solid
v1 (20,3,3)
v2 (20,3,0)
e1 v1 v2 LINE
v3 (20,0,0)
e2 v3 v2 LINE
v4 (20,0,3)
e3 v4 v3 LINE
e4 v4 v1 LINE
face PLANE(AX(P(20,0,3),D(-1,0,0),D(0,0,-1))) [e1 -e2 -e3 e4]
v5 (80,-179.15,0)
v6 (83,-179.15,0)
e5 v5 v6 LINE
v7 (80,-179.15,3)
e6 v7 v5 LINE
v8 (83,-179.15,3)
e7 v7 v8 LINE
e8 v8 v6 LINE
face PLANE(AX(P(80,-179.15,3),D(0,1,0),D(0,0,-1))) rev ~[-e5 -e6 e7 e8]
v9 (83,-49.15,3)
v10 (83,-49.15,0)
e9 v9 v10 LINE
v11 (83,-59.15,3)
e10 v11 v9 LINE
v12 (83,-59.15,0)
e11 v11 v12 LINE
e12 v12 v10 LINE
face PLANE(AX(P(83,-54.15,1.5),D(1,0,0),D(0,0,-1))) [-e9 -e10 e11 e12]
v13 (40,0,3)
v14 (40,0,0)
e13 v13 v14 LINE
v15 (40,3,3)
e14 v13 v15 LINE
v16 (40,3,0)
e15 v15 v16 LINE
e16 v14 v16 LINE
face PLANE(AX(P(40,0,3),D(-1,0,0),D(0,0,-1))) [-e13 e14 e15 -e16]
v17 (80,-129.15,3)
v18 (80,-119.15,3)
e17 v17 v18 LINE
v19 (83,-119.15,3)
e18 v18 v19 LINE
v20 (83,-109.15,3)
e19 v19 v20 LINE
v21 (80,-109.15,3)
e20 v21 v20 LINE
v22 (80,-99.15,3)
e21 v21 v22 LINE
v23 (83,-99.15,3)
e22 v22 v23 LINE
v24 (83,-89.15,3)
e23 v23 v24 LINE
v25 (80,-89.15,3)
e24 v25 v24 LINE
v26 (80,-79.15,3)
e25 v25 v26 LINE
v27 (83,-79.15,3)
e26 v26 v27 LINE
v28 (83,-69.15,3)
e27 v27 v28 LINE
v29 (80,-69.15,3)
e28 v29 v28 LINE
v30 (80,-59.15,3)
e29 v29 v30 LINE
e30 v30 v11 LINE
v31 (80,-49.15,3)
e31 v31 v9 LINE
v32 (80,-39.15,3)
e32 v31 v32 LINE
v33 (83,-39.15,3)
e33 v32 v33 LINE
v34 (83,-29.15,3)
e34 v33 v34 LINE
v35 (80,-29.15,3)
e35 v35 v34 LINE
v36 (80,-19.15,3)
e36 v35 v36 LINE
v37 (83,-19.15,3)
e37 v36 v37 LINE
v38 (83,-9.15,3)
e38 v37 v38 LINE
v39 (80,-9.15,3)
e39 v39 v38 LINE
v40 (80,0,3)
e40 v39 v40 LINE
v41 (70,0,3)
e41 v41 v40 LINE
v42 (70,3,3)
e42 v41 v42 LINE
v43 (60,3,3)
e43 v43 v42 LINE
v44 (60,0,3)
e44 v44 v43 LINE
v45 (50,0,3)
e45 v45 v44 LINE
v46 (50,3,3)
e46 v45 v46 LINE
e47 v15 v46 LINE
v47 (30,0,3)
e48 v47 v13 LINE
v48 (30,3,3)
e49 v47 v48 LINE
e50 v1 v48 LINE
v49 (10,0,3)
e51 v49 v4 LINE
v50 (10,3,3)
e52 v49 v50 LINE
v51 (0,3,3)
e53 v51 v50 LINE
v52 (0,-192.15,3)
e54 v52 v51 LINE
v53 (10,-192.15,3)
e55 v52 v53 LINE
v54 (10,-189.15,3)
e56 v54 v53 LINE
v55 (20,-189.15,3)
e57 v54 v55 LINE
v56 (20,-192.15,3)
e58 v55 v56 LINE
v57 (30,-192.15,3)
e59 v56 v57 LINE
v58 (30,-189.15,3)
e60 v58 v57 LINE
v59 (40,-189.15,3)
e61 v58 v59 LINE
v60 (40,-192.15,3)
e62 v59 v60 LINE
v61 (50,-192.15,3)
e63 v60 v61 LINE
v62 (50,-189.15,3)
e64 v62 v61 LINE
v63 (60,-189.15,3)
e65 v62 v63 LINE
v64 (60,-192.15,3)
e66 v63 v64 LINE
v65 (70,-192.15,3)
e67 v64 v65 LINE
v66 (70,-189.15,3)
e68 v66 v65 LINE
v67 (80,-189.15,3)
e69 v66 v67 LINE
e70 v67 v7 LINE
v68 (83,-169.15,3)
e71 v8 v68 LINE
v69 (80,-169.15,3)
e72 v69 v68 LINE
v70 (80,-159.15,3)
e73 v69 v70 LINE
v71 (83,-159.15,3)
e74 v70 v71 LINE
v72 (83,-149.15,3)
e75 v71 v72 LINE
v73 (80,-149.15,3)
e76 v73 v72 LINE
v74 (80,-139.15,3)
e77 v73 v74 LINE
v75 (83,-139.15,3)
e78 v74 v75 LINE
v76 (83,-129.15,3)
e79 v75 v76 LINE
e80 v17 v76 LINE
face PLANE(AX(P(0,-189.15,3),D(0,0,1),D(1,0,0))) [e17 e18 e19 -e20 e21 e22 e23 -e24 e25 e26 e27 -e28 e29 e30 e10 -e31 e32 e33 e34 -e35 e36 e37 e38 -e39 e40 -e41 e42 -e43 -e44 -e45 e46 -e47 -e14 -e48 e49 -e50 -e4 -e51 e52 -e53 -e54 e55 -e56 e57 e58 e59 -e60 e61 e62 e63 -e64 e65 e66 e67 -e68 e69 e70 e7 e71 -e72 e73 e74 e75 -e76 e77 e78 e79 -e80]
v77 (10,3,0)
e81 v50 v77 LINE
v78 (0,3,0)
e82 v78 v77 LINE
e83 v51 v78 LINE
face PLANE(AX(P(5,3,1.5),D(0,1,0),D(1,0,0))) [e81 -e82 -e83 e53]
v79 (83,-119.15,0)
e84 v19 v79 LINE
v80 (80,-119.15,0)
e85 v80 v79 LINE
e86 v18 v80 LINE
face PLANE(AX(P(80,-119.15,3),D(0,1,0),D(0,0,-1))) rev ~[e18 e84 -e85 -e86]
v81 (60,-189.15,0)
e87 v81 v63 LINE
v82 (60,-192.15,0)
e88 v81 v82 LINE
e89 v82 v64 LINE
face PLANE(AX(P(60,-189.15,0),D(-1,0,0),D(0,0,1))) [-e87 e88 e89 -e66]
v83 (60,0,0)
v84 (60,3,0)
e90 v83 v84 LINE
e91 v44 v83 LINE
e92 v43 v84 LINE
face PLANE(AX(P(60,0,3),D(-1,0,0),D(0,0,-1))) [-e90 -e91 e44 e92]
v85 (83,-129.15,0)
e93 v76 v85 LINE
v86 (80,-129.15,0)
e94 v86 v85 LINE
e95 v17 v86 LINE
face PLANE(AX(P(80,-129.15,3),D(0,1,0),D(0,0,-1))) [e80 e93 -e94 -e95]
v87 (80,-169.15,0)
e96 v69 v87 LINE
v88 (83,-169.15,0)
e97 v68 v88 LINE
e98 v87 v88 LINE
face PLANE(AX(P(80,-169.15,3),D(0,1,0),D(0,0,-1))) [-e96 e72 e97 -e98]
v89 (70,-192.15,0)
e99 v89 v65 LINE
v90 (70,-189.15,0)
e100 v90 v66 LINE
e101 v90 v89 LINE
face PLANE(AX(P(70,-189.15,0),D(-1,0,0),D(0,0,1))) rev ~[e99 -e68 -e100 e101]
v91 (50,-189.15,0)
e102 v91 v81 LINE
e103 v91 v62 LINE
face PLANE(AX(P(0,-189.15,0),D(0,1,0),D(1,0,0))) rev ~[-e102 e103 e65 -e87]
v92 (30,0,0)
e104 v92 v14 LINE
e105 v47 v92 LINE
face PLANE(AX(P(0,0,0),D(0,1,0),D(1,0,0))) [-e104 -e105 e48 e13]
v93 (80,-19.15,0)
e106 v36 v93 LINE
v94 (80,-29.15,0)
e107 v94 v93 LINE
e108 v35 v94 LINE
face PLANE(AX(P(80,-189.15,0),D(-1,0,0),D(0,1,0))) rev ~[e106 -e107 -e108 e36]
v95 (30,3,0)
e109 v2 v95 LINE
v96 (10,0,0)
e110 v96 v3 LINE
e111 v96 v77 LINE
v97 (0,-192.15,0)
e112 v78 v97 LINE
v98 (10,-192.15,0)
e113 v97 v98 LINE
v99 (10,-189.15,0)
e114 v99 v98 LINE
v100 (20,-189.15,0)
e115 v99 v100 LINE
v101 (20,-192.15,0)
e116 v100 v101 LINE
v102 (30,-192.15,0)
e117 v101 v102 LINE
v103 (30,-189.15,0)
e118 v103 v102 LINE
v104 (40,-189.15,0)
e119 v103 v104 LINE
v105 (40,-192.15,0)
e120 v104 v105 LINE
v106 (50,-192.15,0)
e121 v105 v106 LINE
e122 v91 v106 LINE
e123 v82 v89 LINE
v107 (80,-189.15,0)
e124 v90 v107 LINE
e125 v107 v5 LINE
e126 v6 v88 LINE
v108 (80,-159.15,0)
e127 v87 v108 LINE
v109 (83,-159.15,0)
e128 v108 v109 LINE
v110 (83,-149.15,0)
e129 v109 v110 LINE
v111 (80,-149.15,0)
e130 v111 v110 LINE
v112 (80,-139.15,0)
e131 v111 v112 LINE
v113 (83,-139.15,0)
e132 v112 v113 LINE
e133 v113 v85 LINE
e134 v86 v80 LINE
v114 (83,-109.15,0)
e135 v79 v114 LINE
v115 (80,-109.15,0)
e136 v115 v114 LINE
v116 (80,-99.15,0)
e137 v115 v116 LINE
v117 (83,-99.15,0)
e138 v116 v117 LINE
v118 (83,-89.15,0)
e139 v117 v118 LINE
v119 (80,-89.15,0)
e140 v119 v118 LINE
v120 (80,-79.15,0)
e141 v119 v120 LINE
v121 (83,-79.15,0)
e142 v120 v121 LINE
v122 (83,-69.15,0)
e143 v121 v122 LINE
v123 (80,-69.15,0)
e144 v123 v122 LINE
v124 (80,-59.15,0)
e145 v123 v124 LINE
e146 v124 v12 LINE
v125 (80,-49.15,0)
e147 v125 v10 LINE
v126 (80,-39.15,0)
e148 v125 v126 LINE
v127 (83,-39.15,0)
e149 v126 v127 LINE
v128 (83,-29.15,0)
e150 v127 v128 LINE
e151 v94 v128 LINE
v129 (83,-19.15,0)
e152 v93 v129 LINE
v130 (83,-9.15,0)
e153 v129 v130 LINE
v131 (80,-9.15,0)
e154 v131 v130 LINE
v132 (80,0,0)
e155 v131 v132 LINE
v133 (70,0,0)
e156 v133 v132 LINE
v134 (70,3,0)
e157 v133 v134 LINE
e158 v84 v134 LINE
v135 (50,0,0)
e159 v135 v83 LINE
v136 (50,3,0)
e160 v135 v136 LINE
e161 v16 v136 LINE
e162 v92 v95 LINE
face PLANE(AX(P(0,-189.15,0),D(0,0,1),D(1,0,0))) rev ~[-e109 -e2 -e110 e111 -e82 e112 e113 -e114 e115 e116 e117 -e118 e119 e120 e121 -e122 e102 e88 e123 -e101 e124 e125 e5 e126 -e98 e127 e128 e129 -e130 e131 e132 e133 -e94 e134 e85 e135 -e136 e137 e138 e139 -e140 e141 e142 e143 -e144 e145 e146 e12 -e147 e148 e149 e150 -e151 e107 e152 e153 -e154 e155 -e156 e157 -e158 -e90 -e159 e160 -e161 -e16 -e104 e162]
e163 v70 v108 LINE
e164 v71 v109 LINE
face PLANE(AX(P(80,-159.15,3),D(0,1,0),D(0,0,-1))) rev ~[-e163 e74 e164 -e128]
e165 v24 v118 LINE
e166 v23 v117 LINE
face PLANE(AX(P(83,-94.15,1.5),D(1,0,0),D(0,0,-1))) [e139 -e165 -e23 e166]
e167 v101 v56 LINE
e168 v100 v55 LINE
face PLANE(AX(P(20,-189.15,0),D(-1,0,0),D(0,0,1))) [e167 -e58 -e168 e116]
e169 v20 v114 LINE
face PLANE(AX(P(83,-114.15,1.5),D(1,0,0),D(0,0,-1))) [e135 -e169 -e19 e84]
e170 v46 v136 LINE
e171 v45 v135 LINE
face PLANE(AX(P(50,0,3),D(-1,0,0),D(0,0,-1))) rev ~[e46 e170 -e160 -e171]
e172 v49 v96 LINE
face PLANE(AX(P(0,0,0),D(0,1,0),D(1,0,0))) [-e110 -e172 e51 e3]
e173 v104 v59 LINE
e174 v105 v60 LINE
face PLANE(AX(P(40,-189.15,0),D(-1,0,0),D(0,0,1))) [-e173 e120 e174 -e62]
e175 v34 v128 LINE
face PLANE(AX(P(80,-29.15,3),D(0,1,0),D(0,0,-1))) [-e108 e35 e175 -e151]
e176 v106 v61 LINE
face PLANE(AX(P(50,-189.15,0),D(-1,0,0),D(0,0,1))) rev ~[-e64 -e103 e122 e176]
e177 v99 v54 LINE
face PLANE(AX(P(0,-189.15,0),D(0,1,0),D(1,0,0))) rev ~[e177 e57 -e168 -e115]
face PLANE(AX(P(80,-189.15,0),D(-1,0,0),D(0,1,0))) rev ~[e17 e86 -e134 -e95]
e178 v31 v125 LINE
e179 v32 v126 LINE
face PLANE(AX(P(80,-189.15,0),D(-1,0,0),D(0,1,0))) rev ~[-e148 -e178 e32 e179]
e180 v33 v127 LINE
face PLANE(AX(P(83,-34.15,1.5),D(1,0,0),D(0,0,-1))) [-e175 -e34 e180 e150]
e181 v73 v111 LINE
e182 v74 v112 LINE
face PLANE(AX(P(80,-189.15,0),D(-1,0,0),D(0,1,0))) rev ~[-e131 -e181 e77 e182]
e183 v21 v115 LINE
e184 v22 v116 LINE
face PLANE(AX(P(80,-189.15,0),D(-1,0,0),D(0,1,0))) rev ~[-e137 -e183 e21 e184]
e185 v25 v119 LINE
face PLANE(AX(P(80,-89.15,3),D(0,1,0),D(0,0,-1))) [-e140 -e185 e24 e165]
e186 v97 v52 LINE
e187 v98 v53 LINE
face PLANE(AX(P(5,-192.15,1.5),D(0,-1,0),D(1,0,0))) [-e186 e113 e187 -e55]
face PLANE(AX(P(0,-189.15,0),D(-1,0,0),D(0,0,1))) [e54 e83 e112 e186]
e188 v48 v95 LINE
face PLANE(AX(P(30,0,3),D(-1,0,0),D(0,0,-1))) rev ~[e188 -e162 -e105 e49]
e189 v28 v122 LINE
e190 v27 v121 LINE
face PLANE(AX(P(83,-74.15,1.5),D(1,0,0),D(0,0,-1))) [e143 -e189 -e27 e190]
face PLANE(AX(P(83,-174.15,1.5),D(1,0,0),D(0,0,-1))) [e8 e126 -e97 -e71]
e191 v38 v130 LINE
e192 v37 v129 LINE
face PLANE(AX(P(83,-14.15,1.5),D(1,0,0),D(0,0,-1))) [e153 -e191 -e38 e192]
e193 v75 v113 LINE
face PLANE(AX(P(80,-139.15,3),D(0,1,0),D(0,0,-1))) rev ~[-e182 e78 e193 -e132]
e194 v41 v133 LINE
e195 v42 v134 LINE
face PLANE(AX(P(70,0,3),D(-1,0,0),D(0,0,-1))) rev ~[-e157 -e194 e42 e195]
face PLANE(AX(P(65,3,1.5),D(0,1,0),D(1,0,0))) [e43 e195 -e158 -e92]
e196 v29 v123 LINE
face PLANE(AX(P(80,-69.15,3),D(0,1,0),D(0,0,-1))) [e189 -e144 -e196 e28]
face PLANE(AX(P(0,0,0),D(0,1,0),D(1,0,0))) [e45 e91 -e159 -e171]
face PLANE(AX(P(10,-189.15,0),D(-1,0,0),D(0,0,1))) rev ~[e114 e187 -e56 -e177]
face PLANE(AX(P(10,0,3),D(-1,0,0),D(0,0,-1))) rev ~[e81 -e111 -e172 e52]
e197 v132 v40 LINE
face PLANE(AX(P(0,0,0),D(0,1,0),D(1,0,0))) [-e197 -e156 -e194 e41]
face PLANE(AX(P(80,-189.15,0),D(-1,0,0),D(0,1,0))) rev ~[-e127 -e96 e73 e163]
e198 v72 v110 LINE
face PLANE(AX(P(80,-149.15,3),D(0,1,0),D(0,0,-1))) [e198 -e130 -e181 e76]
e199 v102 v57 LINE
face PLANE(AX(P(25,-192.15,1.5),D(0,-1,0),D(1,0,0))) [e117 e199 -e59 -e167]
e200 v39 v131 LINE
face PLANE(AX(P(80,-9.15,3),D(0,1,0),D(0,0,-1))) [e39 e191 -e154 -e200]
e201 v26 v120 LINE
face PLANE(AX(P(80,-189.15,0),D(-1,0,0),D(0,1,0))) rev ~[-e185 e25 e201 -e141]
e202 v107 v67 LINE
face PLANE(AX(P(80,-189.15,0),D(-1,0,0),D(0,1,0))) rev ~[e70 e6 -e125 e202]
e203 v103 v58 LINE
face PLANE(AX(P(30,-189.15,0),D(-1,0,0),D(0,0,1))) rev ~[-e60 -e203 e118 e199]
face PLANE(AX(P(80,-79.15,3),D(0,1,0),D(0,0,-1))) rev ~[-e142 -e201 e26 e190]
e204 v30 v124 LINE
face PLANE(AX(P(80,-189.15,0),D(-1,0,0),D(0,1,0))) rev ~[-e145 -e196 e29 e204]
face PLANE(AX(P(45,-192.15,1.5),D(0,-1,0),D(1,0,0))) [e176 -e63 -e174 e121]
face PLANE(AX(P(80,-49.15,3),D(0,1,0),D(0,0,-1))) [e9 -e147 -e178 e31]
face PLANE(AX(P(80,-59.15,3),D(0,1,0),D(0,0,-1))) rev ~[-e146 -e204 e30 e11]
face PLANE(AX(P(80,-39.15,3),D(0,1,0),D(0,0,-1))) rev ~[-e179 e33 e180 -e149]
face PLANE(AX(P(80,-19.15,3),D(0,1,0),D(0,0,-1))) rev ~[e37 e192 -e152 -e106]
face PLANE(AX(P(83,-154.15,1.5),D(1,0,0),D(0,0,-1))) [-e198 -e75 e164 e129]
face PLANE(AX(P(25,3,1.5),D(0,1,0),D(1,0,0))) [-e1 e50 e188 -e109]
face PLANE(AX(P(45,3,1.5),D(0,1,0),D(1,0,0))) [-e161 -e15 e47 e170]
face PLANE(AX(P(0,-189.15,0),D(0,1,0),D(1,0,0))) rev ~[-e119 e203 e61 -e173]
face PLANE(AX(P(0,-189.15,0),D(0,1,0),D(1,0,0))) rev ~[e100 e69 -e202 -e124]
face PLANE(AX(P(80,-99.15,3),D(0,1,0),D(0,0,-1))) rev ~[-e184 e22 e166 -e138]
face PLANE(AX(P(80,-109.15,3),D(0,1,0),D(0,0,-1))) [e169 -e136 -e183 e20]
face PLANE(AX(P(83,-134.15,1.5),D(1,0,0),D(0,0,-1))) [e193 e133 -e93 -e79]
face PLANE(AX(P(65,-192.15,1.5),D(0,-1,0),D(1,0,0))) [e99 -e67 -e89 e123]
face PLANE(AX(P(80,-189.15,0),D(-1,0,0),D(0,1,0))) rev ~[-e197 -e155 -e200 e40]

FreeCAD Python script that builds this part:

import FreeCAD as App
import Part
import Sketcher
from FreeCAD import Vector
Q = App.Units.Quantity


def add_polygon(sketch, points):
    """Adds a closed chain of lines whose ends are joined by coincident constraints."""
    first, n = sketch.GeometryCount, len(points)
    for a, b in zip(points, points[1:] + points[:1]):
        sketch.addGeometry(Part.LineSegment(App.Vector(*a, 0), App.Vector(*b, 0)), False)
    for i in range(n):
        sketch.addConstraint(Sketcher.Constraint("Coincident", first + i, 2, first + (i + 1) % n, 1))

doc = App.newDocument("Part")
params = doc.addObject("Spreadsheet::Sheet", "Params")
for row, (alias, value) in enumerate([
    ("sketch1_width", "80 mm"),
    ("sketch1_height", "189.15 mm"),
    ("pad1_length", "3 mm"),
    ("sketch2_width", "10 mm"),
    ("sketch2_height", "3 mm"),
    ("pad2_length", "3 mm"),
    ("linearpattern_pitch", "20 mm"),
    ("sketch3_width", "10 mm"),
    ("sketch3_height", "3 mm"),
    ("pad3_length", "3 mm"),
    ("linearpattern2_pitch", "20 mm"),
    ("sketch4_width", "10 mm"),
    ("sketch4_height", "3 mm"),
    ("pad4_length", "3 mm"),
    ("linearpattern3_pitch", "20 mm"),
], start=1):
    params.set(f"A{row}", alias)
    params.set(f"B{row}", "=" + value)
    params.setAlias(f"B{row}", alias)

body = doc.addObject("PartDesign::Body", "Body")

# Sketch on XY plane
sketch1 = body.newObject("Sketcher::SketchObject", "Sketch")
sketch1.AttachmentSupport = (doc.getObject("XY_Plane"), [""])
sketch1.MapMode = "FlatFace"
add_polygon(sketch1, [(0, 0), (0, -189), (80, -189), (80, 0)])  # lines 0-3
sketch1.addConstraint(Sketcher.Constraint("Vertical", 0))
sketch1.addConstraint(Sketcher.Constraint("Horizontal", 1))
sketch1.addConstraint(Sketcher.Constraint("Vertical", 2))
sketch1.addConstraint(Sketcher.Constraint("Horizontal", 3))
sketch1.addConstraint(Sketcher.Constraint("Coincident", 3, 2, -1, 1))
sketch1.addConstraint(Sketcher.Constraint("DistanceX", 1, 1, 1, 2, Q("80 mm")))
sketch1.addConstraint(Sketcher.Constraint("DistanceY", 0, 2, 0, 1, Q("189.15 mm")))
sketch1.setExpression("Constraints[9]", "Params.sketch1_width")
sketch1.setExpression("Constraints[10]", "Params.sketch1_height")
pad1 = body.newObject("PartDesign::Pad", "Pad")
pad1.Profile = sketch1
pad1.setExpression("Length", "Params.pad1_length")

# Sketch on XZ plane
sketch2 = body.newObject("Sketcher::SketchObject", "Sketch001")
sketch2.AttachmentSupport = (doc.getObject("XZ_Plane"), [""])
sketch2.MapMode = "FlatFace"
add_polygon(sketch2, [(0, 0), (0, 3), (10, 3), (10, 0)])  # lines 0-3
sketch2.addConstraint(Sketcher.Constraint("Vertical", 0))
sketch2.addConstraint(Sketcher.Constraint("Horizontal", 1))
sketch2.addConstraint(Sketcher.Constraint("Vertical", 2))
sketch2.addConstraint(Sketcher.Constraint("Horizontal", 3))
sketch2.addConstraint(Sketcher.Constraint("Coincident", 3, 2, -1, 1))
sketch2.addConstraint(Sketcher.Constraint("DistanceX", 1, 1, 1, 2, Q("10 mm")))
sketch2.addConstraint(Sketcher.Constraint("DistanceY", 0, 1, 0, 2, Q("3 mm")))
sketch2.setExpression("Constraints[9]", "Params.sketch2_width")
sketch2.setExpression("Constraints[10]", "Params.sketch2_height")
pad2 = body.newObject("PartDesign::Pad", "Pad001")
pad2.Profile = sketch2
pad2.setExpression("Length", "Params.pad2_length")
pad2.Reversed = True
doc.recompute()

linearpattern = body.newObject("PartDesign::LinearPattern", "LinearPattern")
linearpattern.Originals = [pad2]
linearpattern.Direction = (doc.getObject("X_Axis"), [""])
linearpattern.Mode = "offset"
linearpattern.setExpression("Offset", "Params.linearpattern_pitch")
linearpattern.Occurrences = 4
body.Tip = linearpattern

# Sketch on XZ plane
sketch3 = body.newObject("Sketcher::SketchObject", "Sketch002")
sketch3.AttachmentSupport = (doc.getObject("XZ_Plane"), [""])
sketch3.MapMode = "FlatFace"
sketch3.AttachmentOffset = App.Placement(Vector(0, 0, 189.15), App.Rotation())
add_polygon(sketch3, [(0, 3), (0, 0), (10, 0), (10, 3)])  # lines 0-3
sketch3.addConstraint(Sketcher.Constraint("Vertical", 0))
sketch3.addConstraint(Sketcher.Constraint("Horizontal", 1))
sketch3.addConstraint(Sketcher.Constraint("Vertical", 2))
sketch3.addConstraint(Sketcher.Constraint("Horizontal", 3))
sketch3.addConstraint(Sketcher.Constraint("Coincident", 0, 2, -1, 1))
sketch3.addConstraint(Sketcher.Constraint("DistanceX", 1, 1, 1, 2, Q("10 mm")))
sketch3.addConstraint(Sketcher.Constraint("DistanceY", 0, 2, 0, 1, Q("3 mm")))
sketch3.setExpression("Constraints[9]", "Params.sketch3_width")
sketch3.setExpression("Constraints[10]", "Params.sketch3_height")
pad3 = body.newObject("PartDesign::Pad", "Pad002")
pad3.Profile = sketch3
pad3.setExpression("Length", "Params.pad3_length")
doc.recompute()

linearpattern2 = body.newObject("PartDesign::LinearPattern", "LinearPattern001")
linearpattern2.Originals = [pad3]
linearpattern2.Direction = (doc.getObject("X_Axis"), [""])
linearpattern2.Mode = "offset"
linearpattern2.setExpression("Offset", "Params.linearpattern2_pitch")
linearpattern2.Occurrences = 4
body.Tip = linearpattern2

# Sketch on YZ plane
sketch4 = body.newObject("Sketcher::SketchObject", "Sketch003")
sketch4.AttachmentSupport = (doc.getObject("YZ_Plane"), [""])
sketch4.MapMode = "FlatFace"
sketch4.AttachmentOffset = App.Placement(Vector(0, 0, 80), App.Rotation())
add_polygon(sketch4, [(-169.2, 3), (-179.2, 3), (-179.2, 0), (-169.2, 0)])  # lines 0-3
sketch4.addConstraint(Sketcher.Constraint("Horizontal", 0))
sketch4.addConstraint(Sketcher.Constraint("Vertical", 1))
sketch4.addConstraint(Sketcher.Constraint("Horizontal", 2))
sketch4.addConstraint(Sketcher.Constraint("Vertical", 3))
sketch4.addConstraint(Sketcher.Constraint("PointOnObject", 1, 2, -1))
sketch4.addConstraint(Sketcher.Constraint("DistanceX", 0, 2, 0, 1, Q("10 mm")))
sketch4.addConstraint(Sketcher.Constraint("DistanceY", 1, 2, 1, 1, Q("3 mm")))
sketch4.addConstraint(Sketcher.Constraint("DistanceX", 0, 2, -1, 1, Q("179.15 mm")))
sketch4.setExpression("Constraints[9]", "Params.sketch4_width")
sketch4.setExpression("Constraints[10]", "Params.sketch4_height")
pad4 = body.newObject("PartDesign::Pad", "Pad003")
pad4.Profile = sketch4
pad4.setExpression("Length", "Params.pad4_length")
doc.recompute()

linearpattern3 = body.newObject("PartDesign::LinearPattern", "LinearPattern002")
linearpattern3.Originals = [pad4]
linearpattern3.Direction = (doc.getObject("Y_Axis"), [""])
linearpattern3.Mode = "offset"
linearpattern3.setExpression("Offset", "Params.linearpattern3_pitch")
linearpattern3.Occurrences = 9
body.Tip = linearpattern3

doc.recompute()
